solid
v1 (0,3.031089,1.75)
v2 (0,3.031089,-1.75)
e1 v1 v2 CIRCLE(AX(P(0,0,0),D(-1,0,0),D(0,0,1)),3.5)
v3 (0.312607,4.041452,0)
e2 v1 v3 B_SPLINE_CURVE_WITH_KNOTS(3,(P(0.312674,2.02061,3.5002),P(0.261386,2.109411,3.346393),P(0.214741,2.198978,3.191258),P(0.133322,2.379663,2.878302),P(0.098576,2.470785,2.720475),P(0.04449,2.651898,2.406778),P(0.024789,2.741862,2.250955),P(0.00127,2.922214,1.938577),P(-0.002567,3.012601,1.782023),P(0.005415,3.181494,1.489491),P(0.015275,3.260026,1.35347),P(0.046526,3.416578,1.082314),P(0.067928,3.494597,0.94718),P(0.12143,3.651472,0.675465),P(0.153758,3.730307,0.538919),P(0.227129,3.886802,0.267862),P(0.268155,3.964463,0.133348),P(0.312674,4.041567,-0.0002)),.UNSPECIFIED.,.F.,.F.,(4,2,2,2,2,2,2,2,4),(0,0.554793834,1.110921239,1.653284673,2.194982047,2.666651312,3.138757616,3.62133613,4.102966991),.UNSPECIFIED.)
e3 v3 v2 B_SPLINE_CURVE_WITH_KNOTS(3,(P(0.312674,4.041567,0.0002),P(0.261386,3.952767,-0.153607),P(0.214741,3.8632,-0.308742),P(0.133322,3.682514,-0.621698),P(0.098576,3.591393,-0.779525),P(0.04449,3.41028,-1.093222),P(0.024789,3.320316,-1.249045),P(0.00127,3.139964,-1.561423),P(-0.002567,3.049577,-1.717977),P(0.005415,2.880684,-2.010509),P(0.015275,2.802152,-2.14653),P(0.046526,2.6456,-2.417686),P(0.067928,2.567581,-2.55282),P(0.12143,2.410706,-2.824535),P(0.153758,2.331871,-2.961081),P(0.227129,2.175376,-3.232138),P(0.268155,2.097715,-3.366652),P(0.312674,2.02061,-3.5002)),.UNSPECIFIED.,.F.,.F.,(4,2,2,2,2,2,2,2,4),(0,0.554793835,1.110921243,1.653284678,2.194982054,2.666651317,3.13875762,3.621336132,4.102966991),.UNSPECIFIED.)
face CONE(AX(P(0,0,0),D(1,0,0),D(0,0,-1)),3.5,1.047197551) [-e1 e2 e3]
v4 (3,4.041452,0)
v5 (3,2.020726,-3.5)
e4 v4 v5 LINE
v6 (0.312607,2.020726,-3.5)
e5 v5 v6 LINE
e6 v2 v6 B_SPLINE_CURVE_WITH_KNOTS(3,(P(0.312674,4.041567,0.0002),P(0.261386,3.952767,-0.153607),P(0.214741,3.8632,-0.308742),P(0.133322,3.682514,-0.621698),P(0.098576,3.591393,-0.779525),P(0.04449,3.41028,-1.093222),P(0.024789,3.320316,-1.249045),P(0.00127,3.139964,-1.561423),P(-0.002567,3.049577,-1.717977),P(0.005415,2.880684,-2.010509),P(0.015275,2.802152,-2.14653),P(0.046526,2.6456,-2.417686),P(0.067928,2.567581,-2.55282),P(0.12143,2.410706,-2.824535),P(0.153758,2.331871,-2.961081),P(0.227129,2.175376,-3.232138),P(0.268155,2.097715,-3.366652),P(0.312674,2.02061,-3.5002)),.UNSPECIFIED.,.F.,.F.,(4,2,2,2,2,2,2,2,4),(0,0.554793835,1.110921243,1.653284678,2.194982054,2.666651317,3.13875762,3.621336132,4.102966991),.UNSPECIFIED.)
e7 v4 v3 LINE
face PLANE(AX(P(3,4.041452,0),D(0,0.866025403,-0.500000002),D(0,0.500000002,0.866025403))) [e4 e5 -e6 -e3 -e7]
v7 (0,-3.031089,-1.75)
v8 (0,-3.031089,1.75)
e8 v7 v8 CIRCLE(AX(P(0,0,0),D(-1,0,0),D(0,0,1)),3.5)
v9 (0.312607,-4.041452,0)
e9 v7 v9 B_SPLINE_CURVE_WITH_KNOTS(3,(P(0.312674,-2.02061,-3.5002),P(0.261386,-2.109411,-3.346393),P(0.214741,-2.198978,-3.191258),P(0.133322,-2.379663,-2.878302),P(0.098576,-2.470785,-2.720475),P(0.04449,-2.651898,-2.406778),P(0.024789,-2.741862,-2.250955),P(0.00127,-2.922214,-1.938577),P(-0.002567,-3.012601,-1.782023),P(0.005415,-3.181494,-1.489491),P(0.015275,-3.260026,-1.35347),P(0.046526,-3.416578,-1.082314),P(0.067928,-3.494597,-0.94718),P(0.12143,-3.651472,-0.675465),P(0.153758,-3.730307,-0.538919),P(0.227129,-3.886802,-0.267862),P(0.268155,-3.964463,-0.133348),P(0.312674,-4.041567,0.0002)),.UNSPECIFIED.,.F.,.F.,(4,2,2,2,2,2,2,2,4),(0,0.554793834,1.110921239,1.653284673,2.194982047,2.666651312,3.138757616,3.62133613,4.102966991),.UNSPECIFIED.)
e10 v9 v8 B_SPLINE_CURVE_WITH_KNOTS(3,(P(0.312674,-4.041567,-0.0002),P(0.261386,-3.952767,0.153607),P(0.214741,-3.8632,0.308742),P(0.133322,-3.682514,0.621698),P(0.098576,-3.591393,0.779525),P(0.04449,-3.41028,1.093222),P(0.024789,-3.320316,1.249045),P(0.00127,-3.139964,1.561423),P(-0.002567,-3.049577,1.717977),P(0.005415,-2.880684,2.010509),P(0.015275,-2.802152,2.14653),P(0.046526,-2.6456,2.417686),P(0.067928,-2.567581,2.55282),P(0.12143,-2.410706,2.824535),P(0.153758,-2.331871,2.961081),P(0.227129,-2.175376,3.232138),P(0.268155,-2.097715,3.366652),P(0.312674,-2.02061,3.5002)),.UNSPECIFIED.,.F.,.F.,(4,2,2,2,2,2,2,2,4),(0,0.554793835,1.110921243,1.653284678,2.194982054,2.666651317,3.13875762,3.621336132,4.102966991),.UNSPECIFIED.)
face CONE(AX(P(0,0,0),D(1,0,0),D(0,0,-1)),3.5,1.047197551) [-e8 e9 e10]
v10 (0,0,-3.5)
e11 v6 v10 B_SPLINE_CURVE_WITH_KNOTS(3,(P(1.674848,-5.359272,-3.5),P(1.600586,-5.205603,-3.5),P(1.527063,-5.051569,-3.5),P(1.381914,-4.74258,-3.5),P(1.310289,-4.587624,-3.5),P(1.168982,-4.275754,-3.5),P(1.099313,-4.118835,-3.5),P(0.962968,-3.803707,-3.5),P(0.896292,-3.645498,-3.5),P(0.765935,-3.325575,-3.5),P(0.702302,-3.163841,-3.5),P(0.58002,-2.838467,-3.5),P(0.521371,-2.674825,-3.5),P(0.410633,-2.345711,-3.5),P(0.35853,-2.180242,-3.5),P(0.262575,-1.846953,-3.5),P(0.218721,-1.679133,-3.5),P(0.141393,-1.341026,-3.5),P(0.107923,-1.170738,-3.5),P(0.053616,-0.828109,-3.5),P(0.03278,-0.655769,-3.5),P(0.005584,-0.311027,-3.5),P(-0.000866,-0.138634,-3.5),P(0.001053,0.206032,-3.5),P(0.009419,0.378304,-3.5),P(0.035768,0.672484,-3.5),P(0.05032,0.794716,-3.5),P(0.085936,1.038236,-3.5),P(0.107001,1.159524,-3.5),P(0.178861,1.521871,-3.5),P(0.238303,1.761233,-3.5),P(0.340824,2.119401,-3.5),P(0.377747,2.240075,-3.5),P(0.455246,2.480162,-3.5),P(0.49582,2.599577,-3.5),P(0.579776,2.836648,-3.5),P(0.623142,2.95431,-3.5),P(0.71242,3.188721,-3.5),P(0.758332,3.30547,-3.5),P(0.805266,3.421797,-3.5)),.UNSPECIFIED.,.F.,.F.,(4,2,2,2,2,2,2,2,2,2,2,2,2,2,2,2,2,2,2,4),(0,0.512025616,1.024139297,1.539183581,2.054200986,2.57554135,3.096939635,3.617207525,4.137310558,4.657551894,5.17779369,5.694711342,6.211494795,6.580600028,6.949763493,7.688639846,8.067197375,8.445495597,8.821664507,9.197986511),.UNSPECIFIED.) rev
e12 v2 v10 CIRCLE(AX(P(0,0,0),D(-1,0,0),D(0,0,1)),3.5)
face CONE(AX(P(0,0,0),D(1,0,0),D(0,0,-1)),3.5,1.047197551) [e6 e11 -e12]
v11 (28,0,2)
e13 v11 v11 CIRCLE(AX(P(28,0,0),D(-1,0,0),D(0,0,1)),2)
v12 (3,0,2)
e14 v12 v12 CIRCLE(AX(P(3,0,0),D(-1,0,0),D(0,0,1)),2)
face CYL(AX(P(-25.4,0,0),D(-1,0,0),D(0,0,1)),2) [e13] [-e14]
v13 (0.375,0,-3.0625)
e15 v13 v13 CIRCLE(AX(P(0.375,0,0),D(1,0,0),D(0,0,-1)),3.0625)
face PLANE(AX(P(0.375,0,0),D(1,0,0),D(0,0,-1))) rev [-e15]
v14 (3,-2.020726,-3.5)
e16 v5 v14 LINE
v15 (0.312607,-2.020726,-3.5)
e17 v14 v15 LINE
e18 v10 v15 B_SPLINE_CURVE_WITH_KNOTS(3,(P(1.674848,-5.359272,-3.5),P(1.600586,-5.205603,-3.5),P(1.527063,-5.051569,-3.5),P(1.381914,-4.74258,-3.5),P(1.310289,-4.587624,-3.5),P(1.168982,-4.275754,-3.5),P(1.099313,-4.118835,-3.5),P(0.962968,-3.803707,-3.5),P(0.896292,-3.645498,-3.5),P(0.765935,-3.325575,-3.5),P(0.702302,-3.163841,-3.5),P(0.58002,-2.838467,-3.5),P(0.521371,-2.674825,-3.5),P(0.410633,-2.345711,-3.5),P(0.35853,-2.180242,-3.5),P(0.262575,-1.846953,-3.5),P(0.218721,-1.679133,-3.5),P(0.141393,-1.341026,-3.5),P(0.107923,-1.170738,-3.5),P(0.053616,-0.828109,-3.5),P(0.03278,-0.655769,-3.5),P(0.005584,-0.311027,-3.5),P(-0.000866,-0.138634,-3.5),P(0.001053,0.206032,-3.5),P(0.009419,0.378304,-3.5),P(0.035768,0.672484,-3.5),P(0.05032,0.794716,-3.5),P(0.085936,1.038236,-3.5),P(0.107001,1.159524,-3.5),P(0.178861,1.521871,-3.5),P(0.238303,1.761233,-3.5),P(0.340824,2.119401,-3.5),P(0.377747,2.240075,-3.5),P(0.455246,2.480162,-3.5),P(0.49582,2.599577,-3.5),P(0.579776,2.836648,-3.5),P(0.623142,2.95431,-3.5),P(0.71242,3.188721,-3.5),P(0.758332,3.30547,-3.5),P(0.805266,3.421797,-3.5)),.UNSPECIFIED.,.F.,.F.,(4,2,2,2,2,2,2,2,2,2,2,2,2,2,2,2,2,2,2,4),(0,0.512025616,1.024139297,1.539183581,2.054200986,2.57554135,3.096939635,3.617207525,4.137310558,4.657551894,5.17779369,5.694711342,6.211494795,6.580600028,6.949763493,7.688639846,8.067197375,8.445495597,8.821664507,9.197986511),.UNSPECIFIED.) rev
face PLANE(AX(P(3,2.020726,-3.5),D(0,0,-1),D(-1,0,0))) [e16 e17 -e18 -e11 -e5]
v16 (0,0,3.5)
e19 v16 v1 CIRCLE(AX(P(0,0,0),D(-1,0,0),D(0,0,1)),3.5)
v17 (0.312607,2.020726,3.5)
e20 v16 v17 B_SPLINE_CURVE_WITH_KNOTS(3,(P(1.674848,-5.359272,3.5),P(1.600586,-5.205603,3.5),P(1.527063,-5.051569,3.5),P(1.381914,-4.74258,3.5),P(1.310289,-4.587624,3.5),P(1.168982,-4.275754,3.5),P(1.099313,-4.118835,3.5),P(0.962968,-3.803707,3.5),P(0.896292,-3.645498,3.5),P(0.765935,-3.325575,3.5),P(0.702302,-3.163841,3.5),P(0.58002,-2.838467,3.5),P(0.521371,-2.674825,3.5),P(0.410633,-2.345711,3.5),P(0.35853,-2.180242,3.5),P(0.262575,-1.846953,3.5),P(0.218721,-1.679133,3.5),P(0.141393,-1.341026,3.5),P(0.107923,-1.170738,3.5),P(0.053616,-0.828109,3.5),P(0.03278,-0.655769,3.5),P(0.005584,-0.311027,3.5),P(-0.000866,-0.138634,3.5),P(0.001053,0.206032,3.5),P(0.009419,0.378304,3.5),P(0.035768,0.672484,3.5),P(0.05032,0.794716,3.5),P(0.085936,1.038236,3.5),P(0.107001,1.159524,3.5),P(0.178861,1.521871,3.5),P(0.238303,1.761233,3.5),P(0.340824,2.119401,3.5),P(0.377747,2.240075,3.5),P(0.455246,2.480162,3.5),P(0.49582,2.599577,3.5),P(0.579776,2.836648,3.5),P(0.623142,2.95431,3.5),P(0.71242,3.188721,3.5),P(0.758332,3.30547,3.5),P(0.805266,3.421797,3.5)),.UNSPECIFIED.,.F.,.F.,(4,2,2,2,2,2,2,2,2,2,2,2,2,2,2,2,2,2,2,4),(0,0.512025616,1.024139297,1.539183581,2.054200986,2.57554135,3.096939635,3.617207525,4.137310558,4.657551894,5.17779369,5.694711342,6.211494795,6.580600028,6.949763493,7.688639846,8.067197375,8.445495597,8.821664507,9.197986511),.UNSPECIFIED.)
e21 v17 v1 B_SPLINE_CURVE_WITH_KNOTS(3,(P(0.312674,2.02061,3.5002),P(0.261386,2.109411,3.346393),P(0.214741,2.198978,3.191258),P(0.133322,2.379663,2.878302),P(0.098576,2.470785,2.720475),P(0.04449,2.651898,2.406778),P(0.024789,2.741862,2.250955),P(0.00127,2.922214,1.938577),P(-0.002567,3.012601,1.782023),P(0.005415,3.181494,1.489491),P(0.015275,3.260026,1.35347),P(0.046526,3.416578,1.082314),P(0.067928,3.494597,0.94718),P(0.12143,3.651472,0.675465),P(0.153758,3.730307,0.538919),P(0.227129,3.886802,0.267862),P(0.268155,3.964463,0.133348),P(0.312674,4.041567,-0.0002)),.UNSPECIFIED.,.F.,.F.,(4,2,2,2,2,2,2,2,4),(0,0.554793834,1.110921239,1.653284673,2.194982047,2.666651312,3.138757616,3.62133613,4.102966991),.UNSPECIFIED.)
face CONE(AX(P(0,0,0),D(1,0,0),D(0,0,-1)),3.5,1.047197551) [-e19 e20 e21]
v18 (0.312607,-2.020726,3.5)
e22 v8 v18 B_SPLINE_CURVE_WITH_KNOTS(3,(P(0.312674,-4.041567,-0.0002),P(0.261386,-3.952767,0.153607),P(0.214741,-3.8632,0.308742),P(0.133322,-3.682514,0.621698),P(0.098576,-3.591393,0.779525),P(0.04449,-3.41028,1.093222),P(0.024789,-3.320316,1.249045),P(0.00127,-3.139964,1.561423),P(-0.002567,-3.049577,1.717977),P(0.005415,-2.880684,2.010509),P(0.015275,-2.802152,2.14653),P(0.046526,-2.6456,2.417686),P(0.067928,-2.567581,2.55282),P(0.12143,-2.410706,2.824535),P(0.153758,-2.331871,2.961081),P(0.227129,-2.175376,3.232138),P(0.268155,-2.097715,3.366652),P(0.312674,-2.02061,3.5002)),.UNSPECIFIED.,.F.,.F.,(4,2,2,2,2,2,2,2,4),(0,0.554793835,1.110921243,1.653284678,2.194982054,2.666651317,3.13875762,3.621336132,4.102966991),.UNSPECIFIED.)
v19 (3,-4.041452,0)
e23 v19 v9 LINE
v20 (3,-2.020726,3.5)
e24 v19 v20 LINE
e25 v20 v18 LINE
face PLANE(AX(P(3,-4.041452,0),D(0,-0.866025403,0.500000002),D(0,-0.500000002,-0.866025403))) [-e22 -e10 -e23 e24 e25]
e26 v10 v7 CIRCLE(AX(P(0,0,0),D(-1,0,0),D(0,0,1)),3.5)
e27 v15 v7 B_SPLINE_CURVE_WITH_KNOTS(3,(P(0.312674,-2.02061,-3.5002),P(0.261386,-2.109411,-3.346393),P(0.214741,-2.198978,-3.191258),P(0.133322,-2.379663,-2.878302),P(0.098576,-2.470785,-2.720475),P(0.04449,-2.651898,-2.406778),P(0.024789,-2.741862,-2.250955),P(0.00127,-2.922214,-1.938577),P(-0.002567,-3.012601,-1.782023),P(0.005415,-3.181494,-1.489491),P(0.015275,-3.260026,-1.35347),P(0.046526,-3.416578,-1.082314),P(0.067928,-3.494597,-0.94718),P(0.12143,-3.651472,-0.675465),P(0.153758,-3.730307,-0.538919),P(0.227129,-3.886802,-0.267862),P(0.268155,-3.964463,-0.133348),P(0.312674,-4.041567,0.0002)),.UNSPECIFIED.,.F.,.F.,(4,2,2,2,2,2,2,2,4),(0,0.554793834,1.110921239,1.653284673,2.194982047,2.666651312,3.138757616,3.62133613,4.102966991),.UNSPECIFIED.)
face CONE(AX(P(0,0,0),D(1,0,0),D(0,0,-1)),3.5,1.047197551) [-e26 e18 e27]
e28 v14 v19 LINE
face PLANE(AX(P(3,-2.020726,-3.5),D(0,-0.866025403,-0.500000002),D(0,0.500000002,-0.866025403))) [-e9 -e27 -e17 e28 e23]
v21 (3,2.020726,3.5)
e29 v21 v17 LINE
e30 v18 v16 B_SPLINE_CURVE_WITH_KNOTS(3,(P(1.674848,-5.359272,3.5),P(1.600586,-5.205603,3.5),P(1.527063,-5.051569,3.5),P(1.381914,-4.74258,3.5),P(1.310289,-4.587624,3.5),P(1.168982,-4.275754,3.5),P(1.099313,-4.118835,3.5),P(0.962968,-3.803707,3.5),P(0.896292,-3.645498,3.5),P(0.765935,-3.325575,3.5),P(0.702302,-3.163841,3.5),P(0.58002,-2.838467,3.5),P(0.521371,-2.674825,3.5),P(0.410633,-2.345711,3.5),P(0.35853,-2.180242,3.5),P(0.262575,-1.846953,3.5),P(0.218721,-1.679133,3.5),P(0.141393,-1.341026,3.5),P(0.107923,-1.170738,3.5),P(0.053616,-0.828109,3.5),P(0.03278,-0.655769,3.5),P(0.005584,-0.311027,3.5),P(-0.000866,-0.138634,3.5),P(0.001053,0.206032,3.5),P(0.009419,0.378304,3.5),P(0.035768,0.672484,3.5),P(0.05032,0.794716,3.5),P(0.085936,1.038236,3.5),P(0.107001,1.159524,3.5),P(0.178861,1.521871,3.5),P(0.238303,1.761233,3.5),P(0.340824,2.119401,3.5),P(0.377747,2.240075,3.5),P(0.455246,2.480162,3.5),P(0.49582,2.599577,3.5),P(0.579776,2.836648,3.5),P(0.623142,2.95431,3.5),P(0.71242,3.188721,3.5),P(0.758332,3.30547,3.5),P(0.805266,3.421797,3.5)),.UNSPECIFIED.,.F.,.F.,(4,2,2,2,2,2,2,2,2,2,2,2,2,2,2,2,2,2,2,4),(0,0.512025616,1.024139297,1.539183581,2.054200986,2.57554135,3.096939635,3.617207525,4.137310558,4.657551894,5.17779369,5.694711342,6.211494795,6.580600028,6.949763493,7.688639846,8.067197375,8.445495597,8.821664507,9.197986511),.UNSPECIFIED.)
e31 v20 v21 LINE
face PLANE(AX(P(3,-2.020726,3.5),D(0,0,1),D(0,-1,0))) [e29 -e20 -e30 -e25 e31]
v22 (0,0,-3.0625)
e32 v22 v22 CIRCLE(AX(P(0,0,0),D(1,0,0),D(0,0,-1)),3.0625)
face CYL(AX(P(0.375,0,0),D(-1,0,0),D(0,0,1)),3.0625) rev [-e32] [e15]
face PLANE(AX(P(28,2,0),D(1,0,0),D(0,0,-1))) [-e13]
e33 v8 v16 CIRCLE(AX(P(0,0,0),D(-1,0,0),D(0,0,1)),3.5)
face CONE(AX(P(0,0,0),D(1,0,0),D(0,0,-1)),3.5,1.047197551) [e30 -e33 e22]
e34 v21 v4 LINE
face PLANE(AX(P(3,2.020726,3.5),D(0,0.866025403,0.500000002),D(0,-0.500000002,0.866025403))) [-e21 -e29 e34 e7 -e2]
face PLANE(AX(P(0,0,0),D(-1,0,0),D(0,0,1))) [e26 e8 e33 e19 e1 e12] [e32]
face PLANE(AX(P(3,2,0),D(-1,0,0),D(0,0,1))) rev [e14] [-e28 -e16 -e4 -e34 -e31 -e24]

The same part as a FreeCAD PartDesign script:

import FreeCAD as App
import Part
import Sketcher
Q = App.Units.Quantity


def add_polygon(sketch, points):
    """Adds a closed chain of lines whose ends are joined by coincident constraints."""
    first, n = sketch.GeometryCount, len(points)
    for a, b in zip(points, points[1:] + points[:1]):
        sketch.addGeometry(Part.LineSegment(App.Vector(*a, 0), App.Vector(*b, 0)), False)
    for i in range(n):
        sketch.addConstraint(Sketcher.Constraint("Coincident", first + i, 2, first + (i + 1) % n, 1))

doc = App.newDocument("Part")
body = doc.addObject("PartDesign::Body", "Body")

# Sketch on XY plane
sketch1 = body.newObject("Sketcher::SketchObject", "Sketch")
sketch1.AttachmentSupport = (doc.getObject("XY_Plane"), [""])
sketch1.MapMode = "FlatFace"
add_polygon(sketch1, [(3, 2), (3, 4), (0.3, 4), (0, 3.5), (0, 0), (28, 0), (28, 2)])  # lines 0-6
sketch1.addConstraint([
    Sketcher.Constraint("Vertical", 0),
    Sketcher.Constraint("Horizontal", 1),
    Sketcher.Constraint("Vertical", 3),
    Sketcher.Constraint("Horizontal", 4),
    Sketcher.Constraint("Vertical", 5),
    Sketcher.Constraint("Horizontal", 6),
    Sketcher.Constraint("Coincident", 3, 2, -1, 1),
    Sketcher.Constraint("DistanceX", 4, 1, 4, 2, 28.0),
    Sketcher.Constraint("DistanceX", 6, 2, 6, 1, 25.0),
    Sketcher.Constraint("DistanceY", 5, 1, 5, 2, 2.0),
    Sketcher.Constraint("Angle", 2, Q("-120 deg")),
    Sketcher.Constraint("DistanceY", 3, 2, 3, 1, 3.5),
    Sketcher.Constraint("DistanceY", 0, 1, 0, 2, 2.04157),
])
revolution = body.newObject("PartDesign::Revolution", "Revolution")
revolution.Profile = sketch1
revolution.ReferenceAxis = (sketch1, ["H_Axis"])
revolution.Angle = 360

# Sketch on YZ plane
sketch2 = body.newObject("Sketcher::SketchObject", "Sketch001")
sketch2.AttachmentSupport = (doc.getObject("YZ_Plane"), [""])
sketch2.MapMode = "FlatFace"
sketch2.addGeometry(Part.Circle(App.Vector(0, 0, 0), App.Vector(0, 0, 1), 4.1), False)  # 0
add_polygon(sketch2, [(-2, 3.5), (2, 3.5), (4, 0), (2, -3.5), (-2, -3.5), (-4, 0)])  # lines 1-6
sketch2.addConstraint([
    Sketcher.Constraint("Horizontal", 1),
    Sketcher.Constraint("Horizontal", 4),
    Sketcher.Constraint("Coincident", 0, 3, -1, 1),
    Sketcher.Constraint("Symmetric", 1, 2, 4, 2, -1, 1),
    Sketcher.Constraint("Symmetric", 2, 2, 5, 2, -1, 1),
    Sketcher.Constraint("PointOnObject", 2, 2, -1),
    Sketcher.Constraint("Parallel", 3, 6),
    Sketcher.Constraint("Vertical", 1, 2, 3, 2),
    Sketcher.Constraint("Angle", 2, Q("-60 deg")),
    Sketcher.Constraint("DistanceY", 3, 2, 1, 2, 7.0),
    Sketcher.Constraint("Diameter", 0, 8.163972),
    Sketcher.Constraint("DistanceX", 1, 1, 1, 2, 4.041452),
])
pocket1 = body.newObject("PartDesign::Pocket", "Pocket")
pocket1.Profile = sketch2
pocket1.Length = 3
pocket1.Reversed = True

# Sketch on YZ plane
sketch3 = body.newObject("Sketcher::SketchObject", "Sketch002")
sketch3.AttachmentSupport = (doc.getObject("YZ_Plane"), [""])
sketch3.MapMode = "FlatFace"
sketch3.addGeometry(Part.Circle(App.Vector(0, 0, 0), App.Vector(0, 0, 1), 3.1), False)
sketch3.addConstraint([
    Sketcher.Constraint("Coincident", 0, 3, -1, 1),
    Sketcher.Constraint("Diameter", 0, 6.125),
])
pocket2 = body.newObject("PartDesign::Pocket", "Pocket001")
pocket2.Profile = sketch3
pocket2.Length = 0.375
pocket2.Reversed = True

doc.recompute()
